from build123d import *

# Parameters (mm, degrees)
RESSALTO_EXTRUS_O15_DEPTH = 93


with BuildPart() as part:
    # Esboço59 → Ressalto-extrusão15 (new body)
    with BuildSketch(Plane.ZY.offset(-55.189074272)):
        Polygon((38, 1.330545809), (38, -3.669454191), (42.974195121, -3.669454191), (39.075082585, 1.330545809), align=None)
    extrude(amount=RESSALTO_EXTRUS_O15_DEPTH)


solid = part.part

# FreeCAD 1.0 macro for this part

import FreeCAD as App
import Part
import Sketcher

V = App.Vector

doc = App.newDocument("Part")
body = doc.addObject("PartDesign::Body", "Body")

# Sketch on YZ plane
sketch1 = doc.addObject("Sketcher::SketchObject", "Sketch")
body.addObject(sketch1)
sketch1.AttachmentSupport = (doc.YZ_Plane, [""])
sketch1.MapMode = "FlatFace"
sketch1.AttachmentOffset = App.Placement(V(0, 0, 55.189074), App.Rotation())
sketch1.addGeometry(Part.LineSegment(V(1.3, 38, 0), V(-3.7, 38, 0)), False)
sketch1.addGeometry(Part.LineSegment(V(-3.7, 38, 0), V(-3.7, 43, 0)), False)
sketch1.addGeometry(Part.LineSegment(V(-3.7, 43, 0), V(1.3, 39.1, 0)), False)
sketch1.addGeometry(Part.LineSegment(V(1.3, 39.1, 0), V(1.3, 38, 0)), False)
sketch1.addConstraint(Sketcher.Constraint("Coincident", 0, 2, 1, 1))
sketch1.addConstraint(Sketcher.Constraint("Coincident", 1, 2, 2, 1))
sketch1.addConstraint(Sketcher.Constraint("Coincident", 2, 2, 3, 1))
sketch1.addConstraint(Sketcher.Constraint("Coincident", 3, 2, 0, 1))
sketch1.addConstraint(Sketcher.Constraint("Horizontal", 0))
sketch1.addConstraint(Sketcher.Constraint("Vertical", 1))
sketch1.addConstraint(Sketcher.Constraint("Vertical", 3))
sketch1.addConstraint(Sketcher.Constraint("DistanceX", 0, 2, 0, 1, 5.0))
sketch1.addConstraint(Sketcher.Constraint("DistanceY", -1, 1, 0, 2, 38.0))
sketch1.addConstraint(Sketcher.Constraint("Distance", 2, 6.34059))
sketch1.addConstraint(Sketcher.Constraint("DistanceY", 1, 1, 1, 2, 4.974195))
sketch1.addConstraint(Sketcher.Constraint("DistanceX", 0, 2, -1, 1, 3.669454))
pad1 = doc.addObject("PartDesign::Pad", "Pad")
body.addObject(pad1)
pad1.Profile = sketch1
pad1.Length = 93
pad1.Reversed = True

doc.recompute()
